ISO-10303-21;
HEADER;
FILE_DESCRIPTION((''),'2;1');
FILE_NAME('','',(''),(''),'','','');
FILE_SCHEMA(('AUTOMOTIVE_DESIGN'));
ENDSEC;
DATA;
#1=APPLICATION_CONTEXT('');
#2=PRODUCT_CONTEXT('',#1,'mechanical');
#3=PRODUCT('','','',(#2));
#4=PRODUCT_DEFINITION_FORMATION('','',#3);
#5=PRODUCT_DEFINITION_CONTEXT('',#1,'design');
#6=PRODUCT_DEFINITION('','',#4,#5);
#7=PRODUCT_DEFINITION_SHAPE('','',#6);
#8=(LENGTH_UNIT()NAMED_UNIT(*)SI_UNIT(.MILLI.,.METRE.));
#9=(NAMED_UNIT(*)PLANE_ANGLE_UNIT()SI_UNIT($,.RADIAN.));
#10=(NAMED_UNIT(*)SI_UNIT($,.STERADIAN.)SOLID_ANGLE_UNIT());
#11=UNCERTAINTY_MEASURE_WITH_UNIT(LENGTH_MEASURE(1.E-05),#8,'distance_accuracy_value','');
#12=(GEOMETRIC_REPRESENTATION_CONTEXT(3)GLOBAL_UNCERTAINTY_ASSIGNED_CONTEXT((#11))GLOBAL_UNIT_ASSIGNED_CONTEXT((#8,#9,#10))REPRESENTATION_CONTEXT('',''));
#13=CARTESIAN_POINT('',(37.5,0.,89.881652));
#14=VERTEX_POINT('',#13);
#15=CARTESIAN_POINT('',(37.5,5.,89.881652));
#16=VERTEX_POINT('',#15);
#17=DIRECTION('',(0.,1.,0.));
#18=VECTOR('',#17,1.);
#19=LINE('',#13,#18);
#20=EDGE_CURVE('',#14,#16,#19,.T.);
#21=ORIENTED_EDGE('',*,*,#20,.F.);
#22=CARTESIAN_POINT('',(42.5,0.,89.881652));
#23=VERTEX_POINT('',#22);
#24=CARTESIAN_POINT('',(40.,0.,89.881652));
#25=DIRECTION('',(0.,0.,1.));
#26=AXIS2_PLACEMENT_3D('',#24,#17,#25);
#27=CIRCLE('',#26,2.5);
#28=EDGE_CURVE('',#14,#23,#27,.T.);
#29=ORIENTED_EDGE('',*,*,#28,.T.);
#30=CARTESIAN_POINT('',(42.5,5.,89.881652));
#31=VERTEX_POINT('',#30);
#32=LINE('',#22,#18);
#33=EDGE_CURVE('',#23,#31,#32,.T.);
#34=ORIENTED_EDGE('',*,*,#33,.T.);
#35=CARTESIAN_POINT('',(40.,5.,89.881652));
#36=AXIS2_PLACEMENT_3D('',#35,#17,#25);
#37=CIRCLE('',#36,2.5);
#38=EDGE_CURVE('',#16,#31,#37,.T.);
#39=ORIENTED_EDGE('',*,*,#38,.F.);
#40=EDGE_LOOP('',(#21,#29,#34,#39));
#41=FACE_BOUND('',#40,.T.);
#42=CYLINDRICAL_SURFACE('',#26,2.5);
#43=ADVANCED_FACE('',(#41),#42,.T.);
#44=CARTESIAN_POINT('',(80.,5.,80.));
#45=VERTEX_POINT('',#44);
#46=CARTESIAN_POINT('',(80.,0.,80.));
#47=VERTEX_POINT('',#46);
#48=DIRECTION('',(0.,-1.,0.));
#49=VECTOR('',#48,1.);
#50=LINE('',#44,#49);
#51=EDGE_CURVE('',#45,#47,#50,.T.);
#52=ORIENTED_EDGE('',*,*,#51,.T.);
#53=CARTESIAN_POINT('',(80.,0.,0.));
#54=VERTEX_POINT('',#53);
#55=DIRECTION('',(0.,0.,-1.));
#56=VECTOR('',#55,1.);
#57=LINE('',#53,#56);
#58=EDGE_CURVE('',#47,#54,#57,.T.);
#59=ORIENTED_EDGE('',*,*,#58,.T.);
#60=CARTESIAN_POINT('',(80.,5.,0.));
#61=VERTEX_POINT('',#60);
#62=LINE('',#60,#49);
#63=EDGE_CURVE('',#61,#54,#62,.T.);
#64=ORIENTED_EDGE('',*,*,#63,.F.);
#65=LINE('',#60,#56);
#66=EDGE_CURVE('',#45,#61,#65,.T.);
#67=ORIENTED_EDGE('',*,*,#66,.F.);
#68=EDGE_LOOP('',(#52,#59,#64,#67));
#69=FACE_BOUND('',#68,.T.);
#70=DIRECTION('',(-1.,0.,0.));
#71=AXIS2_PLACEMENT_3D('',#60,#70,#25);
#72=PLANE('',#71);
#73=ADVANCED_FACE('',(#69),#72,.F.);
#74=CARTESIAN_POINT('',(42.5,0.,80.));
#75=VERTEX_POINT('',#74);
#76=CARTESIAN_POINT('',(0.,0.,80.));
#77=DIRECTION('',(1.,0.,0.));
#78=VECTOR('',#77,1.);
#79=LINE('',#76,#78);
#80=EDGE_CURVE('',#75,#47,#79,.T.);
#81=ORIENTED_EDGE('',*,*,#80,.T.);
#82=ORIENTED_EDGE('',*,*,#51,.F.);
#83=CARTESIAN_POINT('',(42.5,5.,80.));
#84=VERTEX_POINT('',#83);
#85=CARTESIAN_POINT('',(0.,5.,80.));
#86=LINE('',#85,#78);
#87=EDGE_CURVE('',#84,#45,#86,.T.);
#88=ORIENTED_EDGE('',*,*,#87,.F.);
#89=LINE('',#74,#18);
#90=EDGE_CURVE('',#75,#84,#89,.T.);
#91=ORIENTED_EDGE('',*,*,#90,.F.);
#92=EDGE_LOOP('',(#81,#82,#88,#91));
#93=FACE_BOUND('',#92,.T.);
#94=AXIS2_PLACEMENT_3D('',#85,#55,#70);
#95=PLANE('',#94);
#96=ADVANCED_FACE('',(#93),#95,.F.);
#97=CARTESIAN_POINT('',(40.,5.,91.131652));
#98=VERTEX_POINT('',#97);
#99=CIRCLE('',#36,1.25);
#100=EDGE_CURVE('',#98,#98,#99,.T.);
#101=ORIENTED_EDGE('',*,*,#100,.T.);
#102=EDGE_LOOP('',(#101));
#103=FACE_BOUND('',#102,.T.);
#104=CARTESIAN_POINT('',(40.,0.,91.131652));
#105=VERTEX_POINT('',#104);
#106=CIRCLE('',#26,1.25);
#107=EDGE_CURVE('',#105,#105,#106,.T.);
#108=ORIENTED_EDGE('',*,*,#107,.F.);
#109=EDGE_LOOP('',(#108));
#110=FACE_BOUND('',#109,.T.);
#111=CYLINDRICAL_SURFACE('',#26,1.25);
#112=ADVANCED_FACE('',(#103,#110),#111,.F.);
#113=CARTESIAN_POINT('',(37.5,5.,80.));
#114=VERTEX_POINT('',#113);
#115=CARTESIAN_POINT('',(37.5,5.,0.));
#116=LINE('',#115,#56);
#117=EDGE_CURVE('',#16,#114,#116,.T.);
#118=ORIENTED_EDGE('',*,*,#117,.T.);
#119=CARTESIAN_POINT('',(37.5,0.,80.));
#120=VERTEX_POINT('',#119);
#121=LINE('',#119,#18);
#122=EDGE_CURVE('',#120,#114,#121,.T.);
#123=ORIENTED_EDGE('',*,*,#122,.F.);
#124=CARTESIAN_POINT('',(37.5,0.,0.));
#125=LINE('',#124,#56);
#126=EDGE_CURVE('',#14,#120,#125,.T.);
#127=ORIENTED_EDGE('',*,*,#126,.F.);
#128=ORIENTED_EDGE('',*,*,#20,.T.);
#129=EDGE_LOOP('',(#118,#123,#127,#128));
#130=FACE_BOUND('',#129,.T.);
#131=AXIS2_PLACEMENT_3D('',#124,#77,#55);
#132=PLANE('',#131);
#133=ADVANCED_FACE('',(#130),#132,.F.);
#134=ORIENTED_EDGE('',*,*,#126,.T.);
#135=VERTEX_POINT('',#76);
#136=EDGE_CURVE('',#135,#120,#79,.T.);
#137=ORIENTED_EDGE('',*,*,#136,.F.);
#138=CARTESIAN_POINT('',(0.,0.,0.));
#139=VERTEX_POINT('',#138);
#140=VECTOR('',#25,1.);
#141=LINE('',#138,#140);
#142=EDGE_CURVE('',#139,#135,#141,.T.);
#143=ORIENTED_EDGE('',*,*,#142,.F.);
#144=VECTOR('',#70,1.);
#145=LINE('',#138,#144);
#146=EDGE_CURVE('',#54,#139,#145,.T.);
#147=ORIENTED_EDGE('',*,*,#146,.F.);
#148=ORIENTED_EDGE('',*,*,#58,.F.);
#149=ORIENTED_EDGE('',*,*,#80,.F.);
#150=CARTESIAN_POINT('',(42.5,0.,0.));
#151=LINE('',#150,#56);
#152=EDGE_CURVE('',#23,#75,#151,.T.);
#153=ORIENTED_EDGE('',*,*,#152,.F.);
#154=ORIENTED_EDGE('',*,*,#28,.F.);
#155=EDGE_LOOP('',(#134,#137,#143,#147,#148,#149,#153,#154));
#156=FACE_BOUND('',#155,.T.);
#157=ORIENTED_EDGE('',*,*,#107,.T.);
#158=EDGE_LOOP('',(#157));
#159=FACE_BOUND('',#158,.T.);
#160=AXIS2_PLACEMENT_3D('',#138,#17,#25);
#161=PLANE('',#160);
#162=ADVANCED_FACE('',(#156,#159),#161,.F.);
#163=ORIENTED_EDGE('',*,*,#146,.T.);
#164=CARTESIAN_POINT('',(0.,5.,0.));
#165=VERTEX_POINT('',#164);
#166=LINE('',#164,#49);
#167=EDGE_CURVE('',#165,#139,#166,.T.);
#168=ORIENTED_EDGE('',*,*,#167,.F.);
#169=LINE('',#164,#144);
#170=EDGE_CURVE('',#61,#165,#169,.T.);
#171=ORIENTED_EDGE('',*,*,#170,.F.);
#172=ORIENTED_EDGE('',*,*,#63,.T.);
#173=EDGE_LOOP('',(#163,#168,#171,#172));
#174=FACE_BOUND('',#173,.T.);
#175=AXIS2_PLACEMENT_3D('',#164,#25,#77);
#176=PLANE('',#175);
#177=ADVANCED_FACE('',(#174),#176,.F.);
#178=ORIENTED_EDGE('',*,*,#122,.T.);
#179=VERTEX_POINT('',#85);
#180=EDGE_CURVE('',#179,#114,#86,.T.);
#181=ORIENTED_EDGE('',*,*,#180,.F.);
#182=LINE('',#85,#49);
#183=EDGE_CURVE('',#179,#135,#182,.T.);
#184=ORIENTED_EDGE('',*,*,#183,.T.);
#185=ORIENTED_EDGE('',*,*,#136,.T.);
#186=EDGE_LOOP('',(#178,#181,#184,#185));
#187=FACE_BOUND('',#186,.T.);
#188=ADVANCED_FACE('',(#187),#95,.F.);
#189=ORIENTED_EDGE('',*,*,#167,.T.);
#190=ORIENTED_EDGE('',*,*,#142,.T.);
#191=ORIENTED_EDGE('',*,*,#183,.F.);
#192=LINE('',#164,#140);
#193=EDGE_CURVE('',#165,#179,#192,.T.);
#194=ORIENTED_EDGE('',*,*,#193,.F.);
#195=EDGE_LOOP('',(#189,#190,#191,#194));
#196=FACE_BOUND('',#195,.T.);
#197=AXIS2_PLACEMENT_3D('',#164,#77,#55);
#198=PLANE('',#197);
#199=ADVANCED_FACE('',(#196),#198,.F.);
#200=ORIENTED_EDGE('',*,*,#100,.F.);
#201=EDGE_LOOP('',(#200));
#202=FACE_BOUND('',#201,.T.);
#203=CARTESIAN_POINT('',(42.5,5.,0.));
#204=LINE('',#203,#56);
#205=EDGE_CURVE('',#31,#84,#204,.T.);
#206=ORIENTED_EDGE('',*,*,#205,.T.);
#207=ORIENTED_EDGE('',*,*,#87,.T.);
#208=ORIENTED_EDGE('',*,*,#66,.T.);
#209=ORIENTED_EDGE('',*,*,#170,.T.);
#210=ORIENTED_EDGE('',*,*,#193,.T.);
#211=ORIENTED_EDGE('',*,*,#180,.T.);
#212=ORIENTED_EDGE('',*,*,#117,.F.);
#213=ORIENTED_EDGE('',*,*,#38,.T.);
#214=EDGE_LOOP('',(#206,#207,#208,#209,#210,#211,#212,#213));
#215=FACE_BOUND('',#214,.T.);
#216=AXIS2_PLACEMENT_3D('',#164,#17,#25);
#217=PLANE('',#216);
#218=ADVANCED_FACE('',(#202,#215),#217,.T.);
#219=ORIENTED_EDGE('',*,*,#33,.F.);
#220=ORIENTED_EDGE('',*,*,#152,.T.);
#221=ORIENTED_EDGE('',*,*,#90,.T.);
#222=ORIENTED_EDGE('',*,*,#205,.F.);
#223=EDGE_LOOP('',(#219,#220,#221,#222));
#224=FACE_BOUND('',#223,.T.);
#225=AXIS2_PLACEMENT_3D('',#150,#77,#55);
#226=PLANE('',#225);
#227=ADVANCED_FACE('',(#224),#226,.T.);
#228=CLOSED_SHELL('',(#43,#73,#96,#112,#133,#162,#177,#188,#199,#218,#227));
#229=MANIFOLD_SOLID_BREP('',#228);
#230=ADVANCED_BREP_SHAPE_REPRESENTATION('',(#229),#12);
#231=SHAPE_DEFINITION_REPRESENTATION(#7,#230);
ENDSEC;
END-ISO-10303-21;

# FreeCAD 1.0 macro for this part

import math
import FreeCAD as App
import Part
import Sketcher

V = App.Vector
Q = App.Units.Quantity

doc = App.newDocument("Part")
params = doc.addObject("Spreadsheet::Sheet", "Params")
for row, (alias, value) in enumerate([
    ("sketch1_width", "80 mm"),
    ("pad1_length", "5 mm"),
    ("sketch2_diameter", "2.5 mm"),
    ("sketch2_radius", "2.5 mm"),
    ("pad2_length", "5 mm"),
], start=1):
    params.set(f"A{row}", alias)
    params.set(f"B{row}", "=" + value)
    params.setAlias(f"B{row}", alias)

body = doc.addObject("PartDesign::Body", "Body")

sketch1 = body.newObject("Sketcher::SketchObject", "Sketch")
sketch1.AttachmentSupport = (doc.getObject("XZ_Plane"), [""])
sketch1.MapMode = "FlatFace"
sketch1.addGeometry([
    Part.LineSegment(V(0, 0, 0), V(0, 80, 0)),
    Part.LineSegment(V(0, 80, 0), V(80, 80, 0)),
    Part.LineSegment(V(80, 80, 0), V(80, 0, 0)),
    Part.LineSegment(V(80, 0, 0), V(0, 0, 0)),
], False)
sketch1.addConstraint([
    Sketcher.Constraint("Coincident", 0, 2, 1, 1),
    Sketcher.Constraint("Coincident", 1, 2, 2, 1),
    Sketcher.Constraint("Coincident", 2, 2, 3, 1),
    Sketcher.Constraint("Coincident", 3, 2, 0, 1),
    Sketcher.Constraint("Vertical", 0),
    Sketcher.Constraint("Horizontal", 1),
    Sketcher.Constraint("Vertical", 2),
    Sketcher.Constraint("Horizontal", 3),
    Sketcher.Constraint("Coincident", 3, 2, -1, 1),
    Sketcher.Constraint("Equal", 3, 0),
    Sketcher.Constraint("DistanceX", 1, 1, 1, 2, Q("80 mm")),
])
sketch1.setExpression("Constraints[10]", "Params.sketch1_width")
pad1 = body.newObject("PartDesign::Pad", "Pad")
pad1.Profile = sketch1
pad1.setExpression("Length", "Params.pad1_length")
pad1.Reversed = True

sketch2 = body.newObject("Sketcher::SketchObject", "Sketch001")
sketch2.AttachmentSupport = (doc.getObject("XZ_Plane"), [""])
sketch2.MapMode = "FlatFace"
sketch2.AttachmentOffset = App.Placement(V(0, 0, -5), App.Rotation())
sketch2.addGeometry([
    Part.LineSegment(V(37.5, 80, 0), V(37.5, 89.9, 0)),
    Part.ArcOfCircle(Part.Circle(V(40, 89.9, 0), V(0, 0, 1), 2.5), math.radians(0), math.radians(180)),
    Part.LineSegment(V(42.5, 89.9, 0), V(42.5, 80, 0)),
    Part.LineSegment(V(42.5, 80, 0), V(37.5, 80, 0)),
    Part.Circle(V(40, 89.9, 0), V(0, 0, 1), 1.2),
], False)
sketch2.addConstraint([
    Sketcher.Constraint("Tangent", 0, 2, 1, 2),
    Sketcher.Constraint("Tangent", 1, 1, 2, 1),
    Sketcher.Constraint("Coincident", 2, 2, 3, 1),
    Sketcher.Constraint("Coincident", 3, 2, 0, 1),
    Sketcher.Constraint("Vertical", 0),
    Sketcher.Constraint("Vertical", 2),
    Sketcher.Constraint("Horizontal", 3),
    Sketcher.Constraint("Coincident", 4, 3, 1, 3),
    Sketcher.Constraint("Diameter", 4, Q("2.5 mm")),
    Sketcher.Constraint("Radius", 1, Q("2.5 mm")),
    Sketcher.Constraint("DistanceX", -1, 1, 1, 3, Q("40 mm")),
    Sketcher.Constraint("DistanceY", -1, 1, 2, 2, Q("80 mm")),
    Sketcher.Constraint("DistanceY", 0, 1, 0, 2, Q("9.881652 mm")),
])
sketch2.setExpression("Constraints[8]", "Params.sketch2_diameter")
sketch2.setExpression("Constraints[9]", "Params.sketch2_radius")
pad2 = body.newObject("PartDesign::Pad", "Pad001")
pad2.Profile = sketch2
pad2.setExpression("Length", "Params.pad2_length")

doc.recompute()
